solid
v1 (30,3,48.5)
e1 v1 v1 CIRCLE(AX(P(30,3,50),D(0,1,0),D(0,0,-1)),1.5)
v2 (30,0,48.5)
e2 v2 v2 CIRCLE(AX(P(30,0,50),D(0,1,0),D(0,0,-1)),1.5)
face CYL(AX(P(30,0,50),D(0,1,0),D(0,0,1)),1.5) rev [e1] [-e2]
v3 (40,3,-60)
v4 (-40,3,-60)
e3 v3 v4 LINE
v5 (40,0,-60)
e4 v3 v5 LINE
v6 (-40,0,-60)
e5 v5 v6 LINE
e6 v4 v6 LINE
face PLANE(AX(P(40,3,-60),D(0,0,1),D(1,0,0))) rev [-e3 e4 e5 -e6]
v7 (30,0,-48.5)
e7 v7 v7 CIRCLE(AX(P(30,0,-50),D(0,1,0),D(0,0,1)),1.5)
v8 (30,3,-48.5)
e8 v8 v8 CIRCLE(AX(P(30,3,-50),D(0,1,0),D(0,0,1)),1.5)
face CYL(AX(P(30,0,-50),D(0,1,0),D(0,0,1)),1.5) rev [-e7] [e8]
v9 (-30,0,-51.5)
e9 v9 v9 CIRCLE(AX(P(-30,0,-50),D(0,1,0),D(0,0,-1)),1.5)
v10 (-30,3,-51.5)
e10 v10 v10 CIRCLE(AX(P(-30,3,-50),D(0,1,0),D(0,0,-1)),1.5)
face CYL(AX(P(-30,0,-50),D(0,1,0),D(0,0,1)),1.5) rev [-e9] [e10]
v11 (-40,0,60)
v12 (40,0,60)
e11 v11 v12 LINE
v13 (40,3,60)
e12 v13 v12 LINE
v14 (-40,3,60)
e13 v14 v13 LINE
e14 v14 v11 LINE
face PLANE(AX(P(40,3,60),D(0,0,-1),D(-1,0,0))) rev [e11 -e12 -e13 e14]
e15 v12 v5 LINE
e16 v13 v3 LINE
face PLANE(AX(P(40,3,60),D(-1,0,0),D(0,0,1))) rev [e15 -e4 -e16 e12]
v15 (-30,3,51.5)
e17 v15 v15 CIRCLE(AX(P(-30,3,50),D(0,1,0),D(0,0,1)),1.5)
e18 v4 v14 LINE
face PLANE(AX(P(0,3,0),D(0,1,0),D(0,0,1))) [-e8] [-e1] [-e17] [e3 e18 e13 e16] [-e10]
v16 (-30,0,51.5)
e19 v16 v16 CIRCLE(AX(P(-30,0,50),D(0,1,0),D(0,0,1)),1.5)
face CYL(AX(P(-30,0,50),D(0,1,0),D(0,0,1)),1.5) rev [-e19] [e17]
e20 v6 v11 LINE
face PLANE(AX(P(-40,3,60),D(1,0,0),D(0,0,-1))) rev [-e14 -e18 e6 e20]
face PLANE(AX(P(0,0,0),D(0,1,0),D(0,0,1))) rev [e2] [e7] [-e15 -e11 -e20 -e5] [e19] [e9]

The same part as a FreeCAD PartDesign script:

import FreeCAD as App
import Part
import Sketcher

doc = App.newDocument("Part")
body = doc.addObject("PartDesign::Body", "Body")

# Sketch on XZ plane
sketch1 = body.newObject("Sketcher::SketchObject", "Sketch")
sketch1.AttachmentSupport = (doc.getObject("XZ_Plane"), [""])
sketch1.MapMode = "FlatFace"
sketch1.addGeometry([
    Part.LineSegment(App.Vector(-40, -60, 0), App.Vector(-40, 60, 0)),
    Part.LineSegment(App.Vector(-40, 60, 0), App.Vector(40, 60, 0)),
    Part.LineSegment(App.Vector(40, 60, 0), App.Vector(40, -60, 0)),
    Part.LineSegment(App.Vector(40, -60, 0), App.Vector(-40, -60, 0)),
], False)
sketch1.addConstraint([
    Sketcher.Constraint("Coincident", 0, 2, 1, 1),
    Sketcher.Constraint("Coincident", 1, 2, 2, 1),
    Sketcher.Constraint("Coincident", 2, 2, 3, 1),
    Sketcher.Constraint("Coincident", 3, 2, 0, 1),
    Sketcher.Constraint("Vertical", 0),
    Sketcher.Constraint("Horizontal", 1),
    Sketcher.Constraint("Vertical", 2),
    Sketcher.Constraint("Horizontal", 3),
    Sketcher.Constraint("Symmetric", 0, 2, 2, 2, -1, 1),
    Sketcher.Constraint("DistanceX", 1, 1, 1, 2, 80.0),
    Sketcher.Constraint("DistanceY", 0, 1, 0, 2, 120.0),
])
pad1 = body.newObject("PartDesign::Pad", "Pad")
pad1.Profile = sketch1
pad1.Length = 3
pad1.Reversed = True

# Sketch on XZ plane
sketch2 = body.newObject("Sketcher::SketchObject", "Sketch001")
sketch2.AttachmentSupport = (doc.getObject("XZ_Plane"), [""])
sketch2.MapMode = "FlatFace"
sketch2.AttachmentOffset = App.Placement(App.Vector(0, 0, -3), App.Rotation())
sketch2.addGeometry([
    Part.Circle(App.Vector(-30, 50, 0), App.Vector(0, 0, 1), 1.5),
    Part.Circle(App.Vector(30, 50, 0), App.Vector(0, 0, 1), 1.5),
    Part.Circle(App.Vector(30, -50, 0), App.Vector(0, 0, 1), 1.5),
    Part.Circle(App.Vector(-30, -50, 0), App.Vector(0, 0, 1), 1.5),
], False)
sketch2.addConstraint([
    Sketcher.Constraint("Equal", 0, 1),
    Sketcher.Constraint("Equal", 1, 2),
    Sketcher.Constraint("Equal", 2, 3),
    Sketcher.Constraint("Symmetric", 0, 3, 2, 3, -1, 1),
    Sketcher.Constraint("Symmetric", 1, 3, 3, 3, -1, 1),
    Sketcher.Constraint("Symmetric", 0, 3, 1, 3, -2),
    Sketcher.Constraint("Diameter", 0, 3.0),
    Sketcher.Constraint("DistanceX", 0, 3, -1, 1, 30.0),
    Sketcher.Constraint("DistanceY", -1, 1, 0, 3, 50.0),
])
pocket1 = body.newObject("PartDesign::Pocket", "Pocket")
pocket1.Profile = sketch2
pocket1.Length = 3
pocket1.Reversed = True

doc.recompute()
